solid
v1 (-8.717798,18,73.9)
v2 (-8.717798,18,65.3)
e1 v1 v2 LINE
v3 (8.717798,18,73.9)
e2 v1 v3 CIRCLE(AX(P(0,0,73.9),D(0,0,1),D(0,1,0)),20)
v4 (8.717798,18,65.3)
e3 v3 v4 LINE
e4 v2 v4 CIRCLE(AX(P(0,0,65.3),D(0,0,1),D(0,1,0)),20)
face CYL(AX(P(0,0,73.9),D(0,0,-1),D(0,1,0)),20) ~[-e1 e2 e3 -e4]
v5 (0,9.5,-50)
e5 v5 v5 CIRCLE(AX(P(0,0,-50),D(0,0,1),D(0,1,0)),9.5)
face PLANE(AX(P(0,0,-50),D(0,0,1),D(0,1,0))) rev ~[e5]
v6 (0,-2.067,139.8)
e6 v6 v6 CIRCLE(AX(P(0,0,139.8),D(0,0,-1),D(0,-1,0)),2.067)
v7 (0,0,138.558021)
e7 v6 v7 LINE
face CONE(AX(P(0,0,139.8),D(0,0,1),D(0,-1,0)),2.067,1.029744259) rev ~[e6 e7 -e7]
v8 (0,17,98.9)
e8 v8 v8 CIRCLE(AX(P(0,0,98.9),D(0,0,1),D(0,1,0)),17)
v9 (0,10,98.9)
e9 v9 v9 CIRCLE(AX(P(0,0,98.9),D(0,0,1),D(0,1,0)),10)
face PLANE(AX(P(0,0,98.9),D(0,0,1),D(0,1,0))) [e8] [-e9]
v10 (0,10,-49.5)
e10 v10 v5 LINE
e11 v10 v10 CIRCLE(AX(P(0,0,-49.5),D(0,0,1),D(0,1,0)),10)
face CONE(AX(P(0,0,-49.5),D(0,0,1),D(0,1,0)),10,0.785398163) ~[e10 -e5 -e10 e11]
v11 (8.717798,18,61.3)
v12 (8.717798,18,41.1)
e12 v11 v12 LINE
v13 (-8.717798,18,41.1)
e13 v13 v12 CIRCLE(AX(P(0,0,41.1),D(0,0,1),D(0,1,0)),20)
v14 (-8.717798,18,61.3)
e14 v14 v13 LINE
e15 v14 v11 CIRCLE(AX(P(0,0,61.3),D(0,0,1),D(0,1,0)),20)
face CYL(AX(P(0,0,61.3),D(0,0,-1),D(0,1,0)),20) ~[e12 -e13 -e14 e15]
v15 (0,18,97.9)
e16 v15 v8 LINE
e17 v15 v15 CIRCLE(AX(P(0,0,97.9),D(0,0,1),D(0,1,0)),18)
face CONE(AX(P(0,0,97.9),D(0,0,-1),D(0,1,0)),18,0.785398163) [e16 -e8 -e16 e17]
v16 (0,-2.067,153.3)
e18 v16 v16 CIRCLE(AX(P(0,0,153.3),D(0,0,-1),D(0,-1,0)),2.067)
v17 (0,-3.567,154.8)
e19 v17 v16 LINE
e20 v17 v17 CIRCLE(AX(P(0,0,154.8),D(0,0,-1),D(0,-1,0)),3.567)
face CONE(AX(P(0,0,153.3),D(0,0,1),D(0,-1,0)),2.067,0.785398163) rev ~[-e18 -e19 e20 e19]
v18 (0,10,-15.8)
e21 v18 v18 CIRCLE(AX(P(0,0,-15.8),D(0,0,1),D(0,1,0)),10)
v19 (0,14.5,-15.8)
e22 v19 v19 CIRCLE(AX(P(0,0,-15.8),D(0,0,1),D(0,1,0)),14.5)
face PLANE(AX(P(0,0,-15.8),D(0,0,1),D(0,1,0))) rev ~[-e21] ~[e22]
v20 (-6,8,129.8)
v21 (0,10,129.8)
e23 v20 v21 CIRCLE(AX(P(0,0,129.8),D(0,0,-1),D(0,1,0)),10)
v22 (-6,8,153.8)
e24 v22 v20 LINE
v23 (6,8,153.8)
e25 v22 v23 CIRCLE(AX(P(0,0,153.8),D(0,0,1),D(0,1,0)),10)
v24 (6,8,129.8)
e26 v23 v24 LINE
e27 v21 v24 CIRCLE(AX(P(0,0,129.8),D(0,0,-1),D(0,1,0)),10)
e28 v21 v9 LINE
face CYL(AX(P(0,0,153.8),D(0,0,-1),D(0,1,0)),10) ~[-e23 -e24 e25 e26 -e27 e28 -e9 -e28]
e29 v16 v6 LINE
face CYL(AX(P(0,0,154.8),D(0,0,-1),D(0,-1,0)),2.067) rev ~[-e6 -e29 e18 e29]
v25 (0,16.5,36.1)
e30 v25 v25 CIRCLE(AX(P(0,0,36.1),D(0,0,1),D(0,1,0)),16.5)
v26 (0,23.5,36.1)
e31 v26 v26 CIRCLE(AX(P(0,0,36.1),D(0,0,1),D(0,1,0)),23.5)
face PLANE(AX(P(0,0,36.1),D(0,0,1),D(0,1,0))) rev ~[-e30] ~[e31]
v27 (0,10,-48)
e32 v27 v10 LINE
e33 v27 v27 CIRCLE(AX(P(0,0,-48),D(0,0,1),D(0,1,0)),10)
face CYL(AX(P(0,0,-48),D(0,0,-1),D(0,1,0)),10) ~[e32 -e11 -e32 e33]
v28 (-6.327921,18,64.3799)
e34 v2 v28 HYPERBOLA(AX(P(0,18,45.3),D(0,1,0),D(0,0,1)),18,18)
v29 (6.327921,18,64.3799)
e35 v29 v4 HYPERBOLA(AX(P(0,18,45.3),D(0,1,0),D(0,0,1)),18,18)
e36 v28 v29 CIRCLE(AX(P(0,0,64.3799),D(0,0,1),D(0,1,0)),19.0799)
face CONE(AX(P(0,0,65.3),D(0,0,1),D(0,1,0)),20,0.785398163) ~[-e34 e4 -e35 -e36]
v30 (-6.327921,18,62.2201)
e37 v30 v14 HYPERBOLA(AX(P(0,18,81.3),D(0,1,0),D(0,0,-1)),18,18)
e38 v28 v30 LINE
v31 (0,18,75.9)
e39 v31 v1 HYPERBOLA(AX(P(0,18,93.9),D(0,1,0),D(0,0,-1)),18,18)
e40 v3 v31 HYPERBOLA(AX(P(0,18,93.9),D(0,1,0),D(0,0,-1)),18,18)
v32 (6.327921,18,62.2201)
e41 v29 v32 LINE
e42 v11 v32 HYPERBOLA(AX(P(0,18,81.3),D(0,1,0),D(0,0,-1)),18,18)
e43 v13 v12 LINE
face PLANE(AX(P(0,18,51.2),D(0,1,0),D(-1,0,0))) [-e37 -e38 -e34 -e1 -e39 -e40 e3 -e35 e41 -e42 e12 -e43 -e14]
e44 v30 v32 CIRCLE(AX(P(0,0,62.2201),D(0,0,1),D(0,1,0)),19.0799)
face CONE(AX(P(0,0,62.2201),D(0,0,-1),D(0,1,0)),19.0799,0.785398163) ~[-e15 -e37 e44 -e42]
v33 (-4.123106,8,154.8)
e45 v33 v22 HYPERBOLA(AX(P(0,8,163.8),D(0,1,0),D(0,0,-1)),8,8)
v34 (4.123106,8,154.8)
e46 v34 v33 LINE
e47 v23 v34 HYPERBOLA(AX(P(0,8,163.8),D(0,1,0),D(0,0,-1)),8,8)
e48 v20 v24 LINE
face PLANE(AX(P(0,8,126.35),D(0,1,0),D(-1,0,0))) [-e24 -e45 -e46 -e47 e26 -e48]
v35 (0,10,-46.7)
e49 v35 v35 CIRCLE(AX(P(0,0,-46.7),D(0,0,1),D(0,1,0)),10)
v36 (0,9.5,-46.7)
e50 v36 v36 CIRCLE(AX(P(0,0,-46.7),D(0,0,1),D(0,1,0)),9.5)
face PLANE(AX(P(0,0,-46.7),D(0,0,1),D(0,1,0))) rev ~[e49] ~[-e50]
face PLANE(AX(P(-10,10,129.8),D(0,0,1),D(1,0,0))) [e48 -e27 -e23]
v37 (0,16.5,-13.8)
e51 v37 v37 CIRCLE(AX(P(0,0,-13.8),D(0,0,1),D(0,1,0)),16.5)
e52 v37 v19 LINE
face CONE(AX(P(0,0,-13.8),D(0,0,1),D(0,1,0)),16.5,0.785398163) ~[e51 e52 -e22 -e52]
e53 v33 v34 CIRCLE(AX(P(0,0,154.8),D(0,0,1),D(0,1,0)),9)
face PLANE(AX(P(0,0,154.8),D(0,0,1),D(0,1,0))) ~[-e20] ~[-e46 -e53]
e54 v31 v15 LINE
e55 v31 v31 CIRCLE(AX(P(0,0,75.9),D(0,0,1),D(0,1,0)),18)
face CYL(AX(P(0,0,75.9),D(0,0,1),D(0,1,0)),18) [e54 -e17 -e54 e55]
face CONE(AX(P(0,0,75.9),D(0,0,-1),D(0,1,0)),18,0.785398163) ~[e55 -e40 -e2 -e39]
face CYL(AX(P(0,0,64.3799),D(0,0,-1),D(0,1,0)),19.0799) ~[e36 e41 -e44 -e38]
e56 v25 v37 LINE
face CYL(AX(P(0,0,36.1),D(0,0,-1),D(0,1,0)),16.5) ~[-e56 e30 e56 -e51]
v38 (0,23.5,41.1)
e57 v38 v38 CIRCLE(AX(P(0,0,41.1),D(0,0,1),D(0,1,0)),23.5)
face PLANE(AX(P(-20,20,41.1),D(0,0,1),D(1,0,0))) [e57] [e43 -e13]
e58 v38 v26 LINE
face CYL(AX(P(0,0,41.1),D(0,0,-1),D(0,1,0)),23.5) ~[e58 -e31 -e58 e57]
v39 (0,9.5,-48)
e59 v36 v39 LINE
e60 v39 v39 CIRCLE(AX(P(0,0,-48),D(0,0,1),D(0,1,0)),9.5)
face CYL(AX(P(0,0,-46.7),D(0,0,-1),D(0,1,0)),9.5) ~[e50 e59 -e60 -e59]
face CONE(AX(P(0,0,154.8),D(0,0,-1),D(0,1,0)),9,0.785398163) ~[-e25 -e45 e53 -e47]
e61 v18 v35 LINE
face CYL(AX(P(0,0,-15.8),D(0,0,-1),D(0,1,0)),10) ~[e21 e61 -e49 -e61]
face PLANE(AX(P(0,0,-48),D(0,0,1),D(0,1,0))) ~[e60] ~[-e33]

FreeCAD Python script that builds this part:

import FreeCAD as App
import Part
import Sketcher

V = App.Vector


def edges_at(feature, points):
    """Names of the edges that pass closest to the given points."""
    edges = feature.Shape.Edges
    near = lambda p: min(range(len(edges)), key=lambda i: edges[i].distToShape(Part.Vertex(*p))[0])
    return sorted({f"Edge{near(p) + 1}" for p in points})

doc = App.newDocument("Part")
body = doc.addObject("PartDesign::Body", "Body")

sketch1 = body.newObject("Sketcher::SketchObject", "Sketch")
sketch1.AttachmentSupport = (doc.getObject("YZ_Plane"), [""])
sketch1.MapMode = "FlatFace"
sketch1.addGeometry(Part.LineSegment(V(9, 154.8, 0), V(0, 154.8, 0)), False)
sketch1.addGeometry(Part.LineSegment(V(0, 154.8, 0), V(0, -50, 0)), False)
sketch1.addGeometry(Part.LineSegment(V(0, -50, 0), V(9.5, -50, 0)), False)
sketch1.addGeometry(Part.LineSegment(V(9.5, -50, 0), V(10, -49.5, 0)), False)
sketch1.addGeometry(Part.LineSegment(V(10, -49.5, 0), V(10, -48, 0)), False)
sketch1.addGeometry(Part.LineSegment(V(10, -48, 0), V(9.5, -48, 0)), False)
sketch1.addGeometry(Part.LineSegment(V(9.5, -48, 0), V(9.5, -46.7, 0)), False)
sketch1.addGeometry(Part.LineSegment(V(9.5, -46.7, 0), V(10, -46.7, 0)), False)
sketch1.addGeometry(Part.LineSegment(V(10, -46.7, 0), V(10, -15.8, 0)), False)
sketch1.addGeometry(Part.LineSegment(V(10, -15.8, 0), V(14.5, -15.8, 0)), False)
sketch1.addGeometry(Part.LineSegment(V(14.5, -15.8, 0), V(16.5, -13.8, 0)), False)
sketch1.addGeometry(Part.LineSegment(V(16.5, -13.8, 0), V(16.5, 36.1, 0)), False)
sketch1.addGeometry(Part.LineSegment(V(16.5, 36.1, 0), V(23.5, 36.1, 0)), False)
sketch1.addGeometry(Part.LineSegment(V(23.5, 36.1, 0), V(23.5, 41.1, 0)), False)
sketch1.addGeometry(Part.LineSegment(V(23.5, 41.1, 0), V(20, 41.1, 0)), False)
sketch1.addGeometry(Part.LineSegment(V(20, 41.1, 0), V(20, 61.3, 0)), False)
sketch1.addGeometry(Part.LineSegment(V(20, 61.3, 0), V(19.1, 62.2, 0)), False)
sketch1.addGeometry(Part.LineSegment(V(19.1, 62.2, 0), V(19.1, 64.4, 0)), False)
sketch1.addGeometry(Part.LineSegment(V(19.1, 64.4, 0), V(20, 65.3, 0)), False)
sketch1.addGeometry(Part.LineSegment(V(20, 65.3, 0), V(20, 73.9, 0)), False)
sketch1.addGeometry(Part.LineSegment(V(20, 73.9, 0), V(18, 75.9, 0)), False)
sketch1.addGeometry(Part.LineSegment(V(18, 75.9, 0), V(18, 97.9, 0)), False)
sketch1.addGeometry(Part.LineSegment(V(18, 97.9, 0), V(17, 98.9, 0)), False)
sketch1.addGeometry(Part.LineSegment(V(17, 98.9, 0), V(10, 98.9, 0)), False)
sketch1.addGeometry(Part.LineSegment(V(10, 98.9, 0), V(10, 153.8, 0)), False)
sketch1.addGeometry(Part.LineSegment(V(10, 153.8, 0), V(9, 154.8, 0)), False)
sketch1.addConstraint(Sketcher.Constraint("Coincident", 0, 2, 1, 1))
sketch1.addConstraint(Sketcher.Constraint("Coincident", 1, 2, 2, 1))
sketch1.addConstraint(Sketcher.Constraint("Coincident", 2, 2, 3, 1))
sketch1.addConstraint(Sketcher.Constraint("Coincident", 3, 2, 4, 1))
sketch1.addConstraint(Sketcher.Constraint("Coincident", 4, 2, 5, 1))
sketch1.addConstraint(Sketcher.Constraint("Coincident", 5, 2, 6, 1))
sketch1.addConstraint(Sketcher.Constraint("Coincident", 6, 2, 7, 1))
sketch1.addConstraint(Sketcher.Constraint("Coincident", 7, 2, 8, 1))
sketch1.addConstraint(Sketcher.Constraint("Coincident", 8, 2, 9, 1))
sketch1.addConstraint(Sketcher.Constraint("Coincident", 9, 2, 10, 1))
sketch1.addConstraint(Sketcher.Constraint("Coincident", 10, 2, 11, 1))
sketch1.addConstraint(Sketcher.Constraint("Coincident", 11, 2, 12, 1))
sketch1.addConstraint(Sketcher.Constraint("Coincident", 12, 2, 13, 1))
sketch1.addConstraint(Sketcher.Constraint("Coincident", 13, 2, 14, 1))
sketch1.addConstraint(Sketcher.Constraint("Coincident", 14, 2, 15, 1))
sketch1.addConstraint(Sketcher.Constraint("Coincident", 15, 2, 16, 1))
sketch1.addConstraint(Sketcher.Constraint("Coincident", 16, 2, 17, 1))
sketch1.addConstraint(Sketcher.Constraint("Coincident", 17, 2, 18, 1))
sketch1.addConstraint(Sketcher.Constraint("Coincident", 18, 2, 19, 1))
sketch1.addConstraint(Sketcher.Constraint("Coincident", 19, 2, 20, 1))
sketch1.addConstraint(Sketcher.Constraint("Coincident", 20, 2, 21, 1))
sketch1.addConstraint(Sketcher.Constraint("Coincident", 21, 2, 22, 1))
sketch1.addConstraint(Sketcher.Constraint("Coincident", 22, 2, 23, 1))
sketch1.addConstraint(Sketcher.Constraint("Coincident", 23, 2, 24, 1))
sketch1.addConstraint(Sketcher.Constraint("Coincident", 24, 2, 25, 1))
sketch1.addConstraint(Sketcher.Constraint("Coincident", 25, 2, 0, 1))
sketch1.addConstraint(Sketcher.Constraint("Horizontal", 0))
sketch1.addConstraint(Sketcher.Constraint("Vertical", 1))
sketch1.addConstraint(Sketcher.Constraint("Horizontal", 2))
sketch1.addConstraint(Sketcher.Constraint("Vertical", 4))
sketch1.addConstraint(Sketcher.Constraint("Horizontal", 5))
sketch1.addConstraint(Sketcher.Constraint("Vertical", 6))
sketch1.addConstraint(Sketcher.Constraint("Horizontal", 7))
sketch1.addConstraint(Sketcher.Constraint("Vertical", 8))
sketch1.addConstraint(Sketcher.Constraint("Horizontal", 9))
sketch1.addConstraint(Sketcher.Constraint("Vertical", 11))
sketch1.addConstraint(Sketcher.Constraint("Horizontal", 12))
sketch1.addConstraint(Sketcher.Constraint("Vertical", 13))
sketch1.addConstraint(Sketcher.Constraint("Horizontal", 14))
sketch1.addConstraint(Sketcher.Constraint("Vertical", 15))
sketch1.addConstraint(Sketcher.Constraint("Vertical", 17))
sketch1.addConstraint(Sketcher.Constraint("Vertical", 19))
sketch1.addConstraint(Sketcher.Constraint("Vertical", 21))
sketch1.addConstraint(Sketcher.Constraint("Horizontal", 23))
sketch1.addConstraint(Sketcher.Constraint("Vertical", 24))
sketch1.addConstraint(Sketcher.Constraint("PointOnObject", 0, 2, -2))
sketch1.addConstraint(Sketcher.Constraint("Parallel", 3, 10))
sketch1.addConstraint(Sketcher.Constraint("Perpendicular", 10, 16))
sketch1.addConstraint(Sketcher.Constraint("Perpendicular", 16, 18))
sketch1.addConstraint(Sketcher.Constraint("Perpendicular", 18, 20))
sketch1.addConstraint(Sketcher.Constraint("Parallel", 20, 22))
sketch1.addConstraint(Sketcher.Constraint("Parallel", 22, 25))
sketch1.addConstraint(Sketcher.Constraint("Vertical", 2, 2, 5, 2))
sketch1.addConstraint(Sketcher.Constraint("Vertical", 4, 2, 7, 2))
sketch1.addConstraint(Sketcher.Constraint("Vertical", 15, 2, 18, 2))
sketch1.addConstraint(Sketcher.Constraint("Vertical", 8, 2, 23, 2))
sketch1.addConstraint(Sketcher.Constraint("Equal", 12, 23))
sketch1.addConstraint(Sketcher.Constraint("Equal", 16, 18))
sketch1.addConstraint(Sketcher.Constraint("Equal", 10, 20))
sketch1.addConstraint(Sketcher.Constraint("Equal", 22, 25))
sketch1.addConstraint(Sketcher.Constraint("DistanceY", 13, 1, 13, 2, 5.0))
sketch1.addConstraint(Sketcher.Constraint("DistanceY", 4, 1, 4, 2, 1.5))
sketch1.addConstraint(Sketcher.Constraint("DistanceY", 6, 1, 6, 2, 1.3))
sketch1.addConstraint(Sketcher.Constraint("DistanceY", 8, 1, 8, 2, 30.9))
sketch1.addConstraint(Sketcher.Constraint("DistanceY", 19, 1, 19, 2, 8.6))
sketch1.addConstraint(Sketcher.Constraint("DistanceY", 1, 2, -1, 1, 50.0))
sketch1.addConstraint(Sketcher.Constraint("DistanceX", -1, 1, 14, 2, 20.0))
sketch1.addConstraint(Sketcher.Constraint("DistanceY", 2, 2, 4, 2, 2.0))
sketch1.addConstraint(Sketcher.Constraint("DistanceX", 6, 2, 9, 2, 5.0))
sketch1.addConstraint(Sketcher.Constraint("DistanceX", 9, 2, 10, 2, 2.0))
sketch1.addConstraint(Sketcher.Constraint("DistanceX", 22, 2, 21, 2, 1.0))
sketch1.addConstraint(Sketcher.Constraint("DistanceY", 19, 2, 22, 2, 25.0))
sketch1.addConstraint(Sketcher.Constraint("DistanceX", 0, 2, 0, 1, 9.0))
sketch1.addConstraint(Sketcher.Constraint("DistanceY", 1, 2, 1, 1, 204.8))
sketch1.addConstraint(Sketcher.Constraint("DistanceY", 11, 1, 11, 2, 49.9))
sketch1.addConstraint(Sketcher.Constraint("DistanceY", 15, 1, 15, 2, 20.2))
sketch1.addConstraint(Sketcher.Constraint("DistanceY", 24, 1, 24, 2, 54.9))
sketch1.addConstraint(Sketcher.Constraint("DistanceX", -1, 1, 16, 2, 19.08))
revolution = body.newObject("PartDesign::Revolution", "Revolution")
revolution.Profile = sketch1
revolution.ReferenceAxis = (sketch1, ["V_Axis"])
revolution.Angle = 360

sketch2 = body.newObject("Sketcher::SketchObject", "Sketch001")
sketch2.AttachmentSupport = (doc.getObject("XZ_Plane"), [""])
sketch2.MapMode = "FlatFace"
sketch2.AttachmentOffset = App.Placement(V(0, 0, -20), App.Rotation())
sketch2.addGeometry(Part.LineSegment(V(20, 41, 0), V(-20, 41, 0)), False)
sketch2.addGeometry(Part.LineSegment(V(-20, 41, 0), V(-20, 99, 0)), False)
sketch2.addGeometry(Part.LineSegment(V(-20, 99, 0), V(20, 99, 0)), False)
sketch2.addGeometry(Part.LineSegment(V(20, 99, 0), V(20, 41, 0)), False)
sketch2.addConstraint(Sketcher.Constraint("Coincident", 0, 2, 1, 1))
sketch2.addConstraint(Sketcher.Constraint("Coincident", 1, 2, 2, 1))
sketch2.addConstraint(Sketcher.Constraint("Coincident", 2, 2, 3, 1))
sketch2.addConstraint(Sketcher.Constraint("Coincident", 3, 2, 0, 1))
sketch2.addConstraint(Sketcher.Constraint("Horizontal", 0))
sketch2.addConstraint(Sketcher.Constraint("Vertical", 1))
sketch2.addConstraint(Sketcher.Constraint("Horizontal", 2))
sketch2.addConstraint(Sketcher.Constraint("Vertical", 3))
sketch2.addConstraint(Sketcher.Constraint("DistanceX", 0, 2, 0, 1, 40.0))
sketch2.addConstraint(Sketcher.Constraint("DistanceY", 1, 1, 1, 2, 57.8))
sketch2.addConstraint(Sketcher.Constraint("DistanceX", 0, 2, -1, 1, 20.0))
sketch2.addConstraint(Sketcher.Constraint("DistanceY", -1, 1, 0, 2, 41.1))
pocket1 = body.newObject("PartDesign::Pocket", "Pocket")
pocket1.Profile = sketch2
pocket1.Length = 2
pocket1.Reversed = True

sketch3 = body.newObject("Sketcher::SketchObject", "Sketch002")
sketch3.AttachmentSupport = (doc.getObject("XZ_Plane"), [""])
sketch3.MapMode = "FlatFace"
sketch3.AttachmentOffset = App.Placement(V(0, 0, -10), App.Rotation())
sketch3.addGeometry(Part.LineSegment(V(10, 130, 0), V(-10, 130, 0)), False)
sketch3.addGeometry(Part.LineSegment(V(-10, 130, 0), V(-10, 155, 0)), False)
sketch3.addGeometry(Part.LineSegment(V(-10, 155, 0), V(10, 155, 0)), False)
sketch3.addGeometry(Part.LineSegment(V(10, 155, 0), V(10, 130, 0)), False)
sketch3.addConstraint(Sketcher.Constraint("Coincident", 0, 2, 1, 1))
sketch3.addConstraint(Sketcher.Constraint("Coincident", 1, 2, 2, 1))
sketch3.addConstraint(Sketcher.Constraint("Coincident", 2, 2, 3, 1))
sketch3.addConstraint(Sketcher.Constraint("Coincident", 3, 2, 0, 1))
sketch3.addConstraint(Sketcher.Constraint("Horizontal", 0))
sketch3.addConstraint(Sketcher.Constraint("Vertical", 1))
sketch3.addConstraint(Sketcher.Constraint("Horizontal", 2))
sketch3.addConstraint(Sketcher.Constraint("Vertical", 3))
sketch3.addConstraint(Sketcher.Constraint("DistanceY", 1, 1, 1, 2, 25.0))
sketch3.addConstraint(Sketcher.Constraint("DistanceX", 0, 2, 0, 1, 20.0))
sketch3.addConstraint(Sketcher.Constraint("DistanceX", 0, 2, -1, 1, 10.0))
sketch3.addConstraint(Sketcher.Constraint("DistanceY", -1, 1, 0, 2, 129.8))
pocket2 = body.newObject("PartDesign::Pocket", "Pocket001")
pocket2.Profile = sketch3
pocket2.Length = 2
pocket2.Reversed = True

sketch4 = body.newObject("Sketcher::SketchObject", "Sketch003")
sketch4.AttachmentSupport = (doc.getObject("XY_Plane"), [""])
sketch4.MapMode = "FlatFace"
sketch4.AttachmentOffset = App.Placement(V(0, 0, 154.8), App.Rotation())
sketch4.addGeometry(Part.Circle(V(0, 0, 0), V(0, 0, 1), 2.1), False)
sketch4.addConstraint(Sketcher.Constraint("Coincident", 0, 3, -1, 1))
sketch4.addConstraint(Sketcher.Constraint("Diameter", 0, 4.134))
doc.recompute()
hole = body.newObject("PartDesign::Hole", "Hole")
hole.Profile = sketch4
hole.ThreadType = "None"
hole.Diameter = 4.134
hole.DepthType = "Dimension"
hole.Depth = 15
hole.DrillPoint = "Angled"
hole.DrillPointAngle = 118
doc.recompute()

chamfer = body.newObject("PartDesign::Chamfer", "Chamfer")
chamfer.Base = (hole, edges_at(hole, [(0, 2.067, 154.8)]))
chamfer.Size = 1.5

doc.recompute()
